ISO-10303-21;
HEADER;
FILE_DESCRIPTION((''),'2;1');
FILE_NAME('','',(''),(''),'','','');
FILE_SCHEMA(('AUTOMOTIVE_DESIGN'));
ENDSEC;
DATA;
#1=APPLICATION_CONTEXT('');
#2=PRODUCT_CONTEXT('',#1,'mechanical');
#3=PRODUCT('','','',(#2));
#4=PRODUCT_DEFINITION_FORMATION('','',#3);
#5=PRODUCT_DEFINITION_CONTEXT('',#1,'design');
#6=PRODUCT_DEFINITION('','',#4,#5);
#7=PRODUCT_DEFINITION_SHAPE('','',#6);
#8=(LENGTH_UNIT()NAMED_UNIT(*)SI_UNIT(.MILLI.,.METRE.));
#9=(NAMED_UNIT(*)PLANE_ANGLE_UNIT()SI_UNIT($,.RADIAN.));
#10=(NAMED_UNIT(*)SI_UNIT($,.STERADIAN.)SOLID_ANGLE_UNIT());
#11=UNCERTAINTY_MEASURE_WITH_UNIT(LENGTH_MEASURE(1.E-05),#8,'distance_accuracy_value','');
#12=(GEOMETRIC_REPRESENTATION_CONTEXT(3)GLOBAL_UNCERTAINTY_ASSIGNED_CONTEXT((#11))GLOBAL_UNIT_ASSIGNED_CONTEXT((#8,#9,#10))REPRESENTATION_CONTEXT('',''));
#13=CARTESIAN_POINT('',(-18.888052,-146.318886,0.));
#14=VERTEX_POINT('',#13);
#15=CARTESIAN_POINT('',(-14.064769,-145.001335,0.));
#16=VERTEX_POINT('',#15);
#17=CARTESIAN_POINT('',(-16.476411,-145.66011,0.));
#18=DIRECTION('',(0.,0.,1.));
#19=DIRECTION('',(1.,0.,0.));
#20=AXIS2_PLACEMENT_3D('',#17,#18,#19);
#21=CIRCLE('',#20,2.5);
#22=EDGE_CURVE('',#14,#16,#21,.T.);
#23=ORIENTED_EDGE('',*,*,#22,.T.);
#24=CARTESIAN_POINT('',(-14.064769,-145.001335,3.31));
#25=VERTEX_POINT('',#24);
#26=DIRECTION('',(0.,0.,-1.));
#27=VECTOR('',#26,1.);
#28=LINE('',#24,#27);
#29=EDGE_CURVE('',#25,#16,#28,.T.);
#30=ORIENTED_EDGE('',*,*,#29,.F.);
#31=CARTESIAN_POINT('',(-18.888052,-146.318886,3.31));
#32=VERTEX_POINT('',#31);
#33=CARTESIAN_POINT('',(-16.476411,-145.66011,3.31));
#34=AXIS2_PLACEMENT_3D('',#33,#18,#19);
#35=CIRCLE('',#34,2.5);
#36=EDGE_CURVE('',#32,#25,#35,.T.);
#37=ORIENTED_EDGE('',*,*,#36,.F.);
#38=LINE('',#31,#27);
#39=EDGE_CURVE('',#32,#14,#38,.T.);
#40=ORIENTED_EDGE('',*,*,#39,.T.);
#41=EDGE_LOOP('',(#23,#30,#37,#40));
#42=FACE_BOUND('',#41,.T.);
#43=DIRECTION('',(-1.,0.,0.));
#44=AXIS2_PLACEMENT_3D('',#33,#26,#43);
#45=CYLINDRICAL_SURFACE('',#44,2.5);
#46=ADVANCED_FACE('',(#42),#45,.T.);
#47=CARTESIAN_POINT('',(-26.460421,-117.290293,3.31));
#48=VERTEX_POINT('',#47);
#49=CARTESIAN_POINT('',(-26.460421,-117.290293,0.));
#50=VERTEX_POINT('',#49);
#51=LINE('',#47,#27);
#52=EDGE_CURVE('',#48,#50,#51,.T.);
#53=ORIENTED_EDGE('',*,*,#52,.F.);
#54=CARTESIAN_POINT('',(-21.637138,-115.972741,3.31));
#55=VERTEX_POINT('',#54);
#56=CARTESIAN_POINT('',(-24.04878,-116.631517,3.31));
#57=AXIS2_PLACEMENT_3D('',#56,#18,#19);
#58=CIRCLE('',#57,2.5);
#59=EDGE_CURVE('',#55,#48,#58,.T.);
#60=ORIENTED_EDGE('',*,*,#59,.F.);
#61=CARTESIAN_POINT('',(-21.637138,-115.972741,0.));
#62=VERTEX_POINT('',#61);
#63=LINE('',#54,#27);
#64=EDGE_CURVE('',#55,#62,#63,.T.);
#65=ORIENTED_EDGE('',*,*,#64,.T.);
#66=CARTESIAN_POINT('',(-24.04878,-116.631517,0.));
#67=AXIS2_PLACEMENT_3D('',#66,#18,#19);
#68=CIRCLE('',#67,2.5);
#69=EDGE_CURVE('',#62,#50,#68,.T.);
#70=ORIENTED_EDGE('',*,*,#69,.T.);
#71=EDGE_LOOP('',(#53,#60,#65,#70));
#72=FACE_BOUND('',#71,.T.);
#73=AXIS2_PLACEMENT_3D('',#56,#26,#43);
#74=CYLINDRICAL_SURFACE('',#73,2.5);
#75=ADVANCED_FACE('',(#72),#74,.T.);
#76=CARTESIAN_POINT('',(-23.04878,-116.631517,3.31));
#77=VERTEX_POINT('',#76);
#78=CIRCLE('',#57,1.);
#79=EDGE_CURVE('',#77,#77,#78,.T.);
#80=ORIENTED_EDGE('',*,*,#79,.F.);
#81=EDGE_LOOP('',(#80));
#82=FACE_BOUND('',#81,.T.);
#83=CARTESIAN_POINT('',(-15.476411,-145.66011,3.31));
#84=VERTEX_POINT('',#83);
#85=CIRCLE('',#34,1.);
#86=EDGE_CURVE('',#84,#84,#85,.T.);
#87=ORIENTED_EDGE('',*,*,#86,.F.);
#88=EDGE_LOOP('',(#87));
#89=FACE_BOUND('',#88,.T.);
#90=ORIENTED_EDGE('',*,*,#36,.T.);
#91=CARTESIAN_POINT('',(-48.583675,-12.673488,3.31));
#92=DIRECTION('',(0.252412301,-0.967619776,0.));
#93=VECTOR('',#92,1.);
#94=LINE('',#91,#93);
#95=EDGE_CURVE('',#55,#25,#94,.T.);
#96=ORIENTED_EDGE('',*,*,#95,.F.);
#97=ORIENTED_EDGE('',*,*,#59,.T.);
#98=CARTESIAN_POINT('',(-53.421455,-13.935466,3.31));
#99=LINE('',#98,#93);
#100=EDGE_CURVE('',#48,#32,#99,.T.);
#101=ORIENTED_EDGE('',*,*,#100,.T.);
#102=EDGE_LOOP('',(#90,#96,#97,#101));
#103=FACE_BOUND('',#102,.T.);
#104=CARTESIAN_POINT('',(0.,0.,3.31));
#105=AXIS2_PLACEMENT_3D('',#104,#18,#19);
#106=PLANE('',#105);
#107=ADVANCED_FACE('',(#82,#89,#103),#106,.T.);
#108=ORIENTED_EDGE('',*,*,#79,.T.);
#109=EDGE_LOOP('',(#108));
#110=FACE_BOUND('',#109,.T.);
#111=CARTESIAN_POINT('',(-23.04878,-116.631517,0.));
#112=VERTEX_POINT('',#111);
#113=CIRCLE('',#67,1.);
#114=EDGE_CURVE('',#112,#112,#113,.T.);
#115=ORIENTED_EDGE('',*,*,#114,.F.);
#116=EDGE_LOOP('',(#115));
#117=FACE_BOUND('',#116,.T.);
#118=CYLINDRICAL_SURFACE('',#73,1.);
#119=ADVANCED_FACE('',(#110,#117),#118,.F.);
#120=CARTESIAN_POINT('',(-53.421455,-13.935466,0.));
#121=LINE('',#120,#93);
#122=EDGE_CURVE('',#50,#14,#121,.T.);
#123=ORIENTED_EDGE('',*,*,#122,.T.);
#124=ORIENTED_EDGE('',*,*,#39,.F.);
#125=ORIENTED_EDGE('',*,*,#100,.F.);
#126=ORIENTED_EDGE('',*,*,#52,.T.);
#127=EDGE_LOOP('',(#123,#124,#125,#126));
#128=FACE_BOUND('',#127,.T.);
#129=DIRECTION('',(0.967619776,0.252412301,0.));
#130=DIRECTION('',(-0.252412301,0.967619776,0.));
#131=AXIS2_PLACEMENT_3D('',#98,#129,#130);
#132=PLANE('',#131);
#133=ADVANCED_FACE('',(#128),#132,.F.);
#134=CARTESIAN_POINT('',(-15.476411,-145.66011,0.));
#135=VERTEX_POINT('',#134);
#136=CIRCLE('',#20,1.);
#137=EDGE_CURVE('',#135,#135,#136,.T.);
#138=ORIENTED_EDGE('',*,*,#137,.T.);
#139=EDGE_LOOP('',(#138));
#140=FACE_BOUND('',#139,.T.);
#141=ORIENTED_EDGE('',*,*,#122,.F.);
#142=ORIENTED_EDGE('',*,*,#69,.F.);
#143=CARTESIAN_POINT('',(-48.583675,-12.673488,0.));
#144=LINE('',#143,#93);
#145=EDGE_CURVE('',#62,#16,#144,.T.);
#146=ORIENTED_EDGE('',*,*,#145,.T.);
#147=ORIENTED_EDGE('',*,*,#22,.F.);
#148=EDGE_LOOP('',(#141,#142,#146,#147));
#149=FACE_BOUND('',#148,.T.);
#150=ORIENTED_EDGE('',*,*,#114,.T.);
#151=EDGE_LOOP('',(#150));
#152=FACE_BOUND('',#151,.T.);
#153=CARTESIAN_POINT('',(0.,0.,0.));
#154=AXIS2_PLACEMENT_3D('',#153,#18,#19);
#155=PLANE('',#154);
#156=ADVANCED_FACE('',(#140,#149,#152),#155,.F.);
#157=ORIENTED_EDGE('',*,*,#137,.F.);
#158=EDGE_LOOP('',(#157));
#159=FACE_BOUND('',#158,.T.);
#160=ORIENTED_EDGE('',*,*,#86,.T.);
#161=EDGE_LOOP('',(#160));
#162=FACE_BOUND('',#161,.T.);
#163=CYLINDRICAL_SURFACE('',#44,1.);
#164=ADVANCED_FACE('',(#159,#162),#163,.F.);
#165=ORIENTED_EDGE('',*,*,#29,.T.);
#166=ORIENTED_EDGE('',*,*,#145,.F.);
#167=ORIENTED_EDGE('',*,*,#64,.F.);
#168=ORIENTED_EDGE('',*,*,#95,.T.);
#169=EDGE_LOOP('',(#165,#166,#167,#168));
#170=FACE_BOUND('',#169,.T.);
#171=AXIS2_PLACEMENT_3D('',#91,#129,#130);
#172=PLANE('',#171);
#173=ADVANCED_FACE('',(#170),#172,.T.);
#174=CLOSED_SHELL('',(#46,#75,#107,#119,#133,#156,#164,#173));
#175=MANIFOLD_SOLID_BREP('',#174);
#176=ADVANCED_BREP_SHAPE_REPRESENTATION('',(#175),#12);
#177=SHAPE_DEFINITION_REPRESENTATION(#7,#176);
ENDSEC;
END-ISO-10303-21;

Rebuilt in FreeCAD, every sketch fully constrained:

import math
import FreeCAD as App
import Part
import Sketcher

doc = App.newDocument("Part")
body = doc.addObject("PartDesign::Body", "Body")

# Sketch on XY plane
sketch1 = body.newObject("Sketcher::SketchObject", "Sketch")
sketch1.AttachmentSupport = (doc.getObject("XY_Plane"), [""])
sketch1.MapMode = "FlatFace"
sketch1.addGeometry([
    Part.ArcOfCircle(Part.Circle(App.Vector(-24.04878, -116.631517, 0), App.Vector(0, 0, 1), 2.5), math.radians(15.278453), math.radians(195.278453)),  # 0
    Part.LineSegment(App.Vector(-26.460421, -117.290293, 0), App.Vector(-18.888052, -146.318886, 0)),  # 1
    Part.ArcOfCircle(Part.Circle(App.Vector(-16.476411, -145.66011, 0), App.Vector(0, 0, 1), 2.5), math.radians(-164.721547), math.radians(15.278453)),  # 2
    Part.LineSegment(App.Vector(-14.064769, -145.001335, 0), App.Vector(-21.637138, -115.972741, 0)),  # 3
    Part.Circle(App.Vector(-16.476411, -145.66011, 0), App.Vector(0, 0, 1), 1),  # 4
    Part.Circle(App.Vector(-24.04878, -116.631517, 0), App.Vector(0, 0, 1), 1),  # 5
], False)
sketch1.addConstraint([
    Sketcher.Constraint("Coincident", 0, 2, 1, 1),
    Sketcher.Constraint("Coincident", 1, 2, 2, 1),
    Sketcher.Constraint("Coincident", 2, 2, 3, 1),
    Sketcher.Constraint("Coincident", 3, 2, 0, 1),
    Sketcher.Constraint("Coincident", 4, 3, 2, 3),
    Sketcher.Constraint("Coincident", 5, 3, 0, 3),
    Sketcher.Constraint("Equal", 0, 2),
    Sketcher.Constraint("Equal", 4, 5),
    Sketcher.Constraint("Parallel", 1, 3),
    Sketcher.Constraint("Diameter", 4, 2.0),
    Sketcher.Constraint("Radius", 0, 2.5),
    Sketcher.Constraint("Distance", 1, 30.0),
    Sketcher.Constraint("DistanceX", 0, 3, -1, 1, 24.04878),
    Sketcher.Constraint("DistanceX", 2, 3, -1, 1, 16.476411),
    Sketcher.Constraint("DistanceY", 2, 3, -1, 1, 145.66011),
    Sketcher.Constraint("DistanceX", 0, 2, -1, 1, 26.460421),
    Sketcher.Constraint("DistanceX", 1, 2, -1, 1, 18.888052),
    Sketcher.Constraint("DistanceX", 2, 2, -1, 1, 14.064769),
])
pad1 = body.newObject("PartDesign::Pad", "Pad")
pad1.Profile = sketch1
pad1.Length = 3.31

doc.recompute()
